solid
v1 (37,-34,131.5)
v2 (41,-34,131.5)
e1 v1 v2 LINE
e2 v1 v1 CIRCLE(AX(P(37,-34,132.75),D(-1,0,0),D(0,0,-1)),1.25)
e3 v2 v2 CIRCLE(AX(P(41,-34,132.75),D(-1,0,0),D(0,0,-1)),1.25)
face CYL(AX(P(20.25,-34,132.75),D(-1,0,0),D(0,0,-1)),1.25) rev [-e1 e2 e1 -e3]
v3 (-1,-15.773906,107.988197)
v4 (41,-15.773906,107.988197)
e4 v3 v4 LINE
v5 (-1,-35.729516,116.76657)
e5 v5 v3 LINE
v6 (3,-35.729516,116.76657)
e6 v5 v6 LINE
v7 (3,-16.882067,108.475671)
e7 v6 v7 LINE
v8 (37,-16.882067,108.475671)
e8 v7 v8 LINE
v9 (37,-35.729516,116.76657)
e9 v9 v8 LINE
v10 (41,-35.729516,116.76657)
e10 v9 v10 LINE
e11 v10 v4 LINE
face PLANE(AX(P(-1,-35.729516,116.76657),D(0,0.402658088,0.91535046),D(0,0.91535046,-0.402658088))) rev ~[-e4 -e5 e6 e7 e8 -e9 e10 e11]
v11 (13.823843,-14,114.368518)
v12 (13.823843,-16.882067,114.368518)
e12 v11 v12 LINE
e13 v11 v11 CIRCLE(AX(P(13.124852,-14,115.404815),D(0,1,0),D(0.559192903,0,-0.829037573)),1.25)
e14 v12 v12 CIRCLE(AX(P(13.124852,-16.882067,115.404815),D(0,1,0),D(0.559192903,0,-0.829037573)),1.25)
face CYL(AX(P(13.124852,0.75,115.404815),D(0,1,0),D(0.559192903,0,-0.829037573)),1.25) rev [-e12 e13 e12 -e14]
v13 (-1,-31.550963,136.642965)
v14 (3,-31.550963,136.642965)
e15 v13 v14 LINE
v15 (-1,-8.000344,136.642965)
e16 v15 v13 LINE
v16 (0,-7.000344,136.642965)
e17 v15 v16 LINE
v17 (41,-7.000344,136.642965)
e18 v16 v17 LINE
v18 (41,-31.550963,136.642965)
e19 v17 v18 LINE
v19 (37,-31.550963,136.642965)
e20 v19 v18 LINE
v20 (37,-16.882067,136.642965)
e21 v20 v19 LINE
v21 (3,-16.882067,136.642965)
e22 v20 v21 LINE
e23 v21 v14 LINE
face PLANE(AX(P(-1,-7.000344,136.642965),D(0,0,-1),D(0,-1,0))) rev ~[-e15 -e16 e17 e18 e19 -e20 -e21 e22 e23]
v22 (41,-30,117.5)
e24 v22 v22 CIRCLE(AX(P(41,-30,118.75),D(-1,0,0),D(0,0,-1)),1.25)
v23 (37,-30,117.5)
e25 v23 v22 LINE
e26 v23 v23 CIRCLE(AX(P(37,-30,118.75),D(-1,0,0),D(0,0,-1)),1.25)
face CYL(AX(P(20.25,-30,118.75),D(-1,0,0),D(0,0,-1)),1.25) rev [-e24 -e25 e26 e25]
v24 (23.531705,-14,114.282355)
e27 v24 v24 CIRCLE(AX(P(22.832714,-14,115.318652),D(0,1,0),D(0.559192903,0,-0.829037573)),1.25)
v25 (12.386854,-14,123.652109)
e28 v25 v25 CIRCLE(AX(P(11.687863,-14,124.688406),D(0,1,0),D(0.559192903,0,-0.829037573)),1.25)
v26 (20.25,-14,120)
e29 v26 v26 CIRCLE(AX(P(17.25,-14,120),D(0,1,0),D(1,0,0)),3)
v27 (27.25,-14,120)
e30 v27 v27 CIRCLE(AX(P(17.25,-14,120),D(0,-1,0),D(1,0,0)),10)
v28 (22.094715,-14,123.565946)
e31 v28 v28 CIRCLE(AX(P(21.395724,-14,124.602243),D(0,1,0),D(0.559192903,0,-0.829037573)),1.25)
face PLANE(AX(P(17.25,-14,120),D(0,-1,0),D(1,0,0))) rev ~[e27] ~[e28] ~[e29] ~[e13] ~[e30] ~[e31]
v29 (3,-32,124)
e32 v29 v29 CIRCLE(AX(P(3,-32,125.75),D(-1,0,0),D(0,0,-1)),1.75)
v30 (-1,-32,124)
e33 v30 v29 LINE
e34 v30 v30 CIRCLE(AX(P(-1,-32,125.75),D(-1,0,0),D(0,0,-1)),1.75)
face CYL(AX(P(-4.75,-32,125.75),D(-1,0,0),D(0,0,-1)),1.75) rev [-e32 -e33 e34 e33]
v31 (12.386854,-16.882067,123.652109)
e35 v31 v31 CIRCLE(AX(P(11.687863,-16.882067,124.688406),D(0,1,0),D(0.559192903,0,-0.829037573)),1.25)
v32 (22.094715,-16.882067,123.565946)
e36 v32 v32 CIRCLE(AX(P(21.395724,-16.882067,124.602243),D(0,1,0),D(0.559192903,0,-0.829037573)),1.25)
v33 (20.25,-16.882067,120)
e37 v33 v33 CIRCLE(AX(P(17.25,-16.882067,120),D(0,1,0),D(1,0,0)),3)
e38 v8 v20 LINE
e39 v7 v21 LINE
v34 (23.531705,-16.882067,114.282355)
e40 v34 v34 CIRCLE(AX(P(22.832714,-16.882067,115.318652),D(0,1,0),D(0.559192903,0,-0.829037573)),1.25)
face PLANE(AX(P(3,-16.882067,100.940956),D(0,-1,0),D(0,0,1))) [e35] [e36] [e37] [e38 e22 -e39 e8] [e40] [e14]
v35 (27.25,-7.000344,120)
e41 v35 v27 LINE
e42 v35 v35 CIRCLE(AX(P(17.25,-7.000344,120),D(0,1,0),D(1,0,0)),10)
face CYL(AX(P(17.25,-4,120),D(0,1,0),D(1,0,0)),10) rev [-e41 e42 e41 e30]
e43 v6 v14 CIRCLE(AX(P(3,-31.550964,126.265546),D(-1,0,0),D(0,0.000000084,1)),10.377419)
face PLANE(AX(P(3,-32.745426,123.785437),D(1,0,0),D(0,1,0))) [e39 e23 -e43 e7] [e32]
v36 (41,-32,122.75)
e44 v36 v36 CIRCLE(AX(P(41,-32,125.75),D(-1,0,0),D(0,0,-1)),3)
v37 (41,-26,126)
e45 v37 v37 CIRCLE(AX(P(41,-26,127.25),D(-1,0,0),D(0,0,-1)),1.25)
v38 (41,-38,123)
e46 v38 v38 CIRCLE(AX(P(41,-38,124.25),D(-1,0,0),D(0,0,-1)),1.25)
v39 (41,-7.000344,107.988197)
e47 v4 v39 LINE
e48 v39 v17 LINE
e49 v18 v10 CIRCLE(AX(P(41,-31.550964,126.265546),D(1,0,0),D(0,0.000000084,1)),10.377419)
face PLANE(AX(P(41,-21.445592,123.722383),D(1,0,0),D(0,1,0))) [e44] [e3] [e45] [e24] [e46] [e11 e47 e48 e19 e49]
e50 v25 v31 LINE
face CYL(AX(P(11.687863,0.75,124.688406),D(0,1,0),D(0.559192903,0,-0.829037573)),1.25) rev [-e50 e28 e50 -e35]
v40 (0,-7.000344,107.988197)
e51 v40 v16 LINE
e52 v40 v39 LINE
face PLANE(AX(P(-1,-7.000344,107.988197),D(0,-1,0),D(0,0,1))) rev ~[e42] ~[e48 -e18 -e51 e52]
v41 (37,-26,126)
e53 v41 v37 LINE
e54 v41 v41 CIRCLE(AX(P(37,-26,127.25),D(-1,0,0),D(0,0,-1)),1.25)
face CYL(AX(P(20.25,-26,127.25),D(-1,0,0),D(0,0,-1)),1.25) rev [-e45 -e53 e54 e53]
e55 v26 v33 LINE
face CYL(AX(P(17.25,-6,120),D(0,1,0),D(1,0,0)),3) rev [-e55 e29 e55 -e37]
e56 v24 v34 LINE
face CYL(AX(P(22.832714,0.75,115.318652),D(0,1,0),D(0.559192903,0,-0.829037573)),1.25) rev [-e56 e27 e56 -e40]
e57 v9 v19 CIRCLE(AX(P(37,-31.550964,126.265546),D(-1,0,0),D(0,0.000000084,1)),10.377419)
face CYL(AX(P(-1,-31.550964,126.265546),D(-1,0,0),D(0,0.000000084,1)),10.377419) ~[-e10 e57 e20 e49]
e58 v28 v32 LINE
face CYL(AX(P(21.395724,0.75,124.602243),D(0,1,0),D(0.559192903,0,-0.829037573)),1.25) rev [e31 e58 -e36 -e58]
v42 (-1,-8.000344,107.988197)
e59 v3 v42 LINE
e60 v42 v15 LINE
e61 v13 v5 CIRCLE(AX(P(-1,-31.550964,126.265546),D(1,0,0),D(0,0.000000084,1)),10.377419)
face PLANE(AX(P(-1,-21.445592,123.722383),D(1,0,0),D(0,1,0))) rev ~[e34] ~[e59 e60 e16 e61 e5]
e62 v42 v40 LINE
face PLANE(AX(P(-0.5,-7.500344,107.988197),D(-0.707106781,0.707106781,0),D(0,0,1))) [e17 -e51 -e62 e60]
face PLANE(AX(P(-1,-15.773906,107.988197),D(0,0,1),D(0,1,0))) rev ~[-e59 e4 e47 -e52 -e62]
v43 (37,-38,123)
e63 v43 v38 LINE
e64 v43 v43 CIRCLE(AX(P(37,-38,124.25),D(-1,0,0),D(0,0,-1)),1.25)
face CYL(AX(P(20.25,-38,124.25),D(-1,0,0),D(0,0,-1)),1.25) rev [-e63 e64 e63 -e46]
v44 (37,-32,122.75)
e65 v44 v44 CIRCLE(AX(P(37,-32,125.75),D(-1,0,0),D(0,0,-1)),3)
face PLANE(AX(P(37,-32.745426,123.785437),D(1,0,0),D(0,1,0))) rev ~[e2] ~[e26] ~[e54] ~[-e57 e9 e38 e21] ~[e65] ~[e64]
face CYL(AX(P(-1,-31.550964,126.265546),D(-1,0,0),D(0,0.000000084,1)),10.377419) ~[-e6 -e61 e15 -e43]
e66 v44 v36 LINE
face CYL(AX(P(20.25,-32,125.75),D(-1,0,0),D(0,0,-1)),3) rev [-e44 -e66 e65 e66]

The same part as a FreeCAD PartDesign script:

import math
import FreeCAD as App
import Part
import Sketcher

V = App.Vector
Q = App.Units.Quantity


def edges_at(feature, points):
    """Names of the edges that pass closest to the given points."""
    edges = feature.Shape.Edges
    near = lambda p: min(range(len(edges)), key=lambda i: edges[i].distToShape(Part.Vertex(*p))[0])
    return sorted({f"Edge{near(p) + 1}" for p in points})


def add_polygon(sketch, points):
    """Adds a closed chain of lines whose ends are joined by coincident constraints."""
    first, n = sketch.GeometryCount, len(points)
    for a, b in zip(points, points[1:] + points[:1]):
        sketch.addGeometry(Part.LineSegment(App.Vector(*a, 0), App.Vector(*b, 0)), False)
    for i in range(n):
        sketch.addConstraint(Sketcher.Constraint("Coincident", first + i, 2, first + (i + 1) % n, 1))

doc = App.newDocument("Part")
body = doc.addObject("PartDesign::Body", "Body")

# Sketch on XY plane
sketch1 = body.newObject("Sketcher::SketchObject", "Sketch")
sketch1.AttachmentSupport = (doc.getObject("XY_Plane"), [""])
sketch1.MapMode = "FlatFace"
sketch1.addGeometry(Part.Circle(V(0, 0, 0), V(0, 0, 1), 1.8), False)
sketch1.addConstraint([
    Sketcher.Constraint("Coincident", 0, 3, -1, 1),
    Sketcher.Constraint("Diameter", 0, Q("3.5 mm")),
])
pad1 = body.newObject("PartDesign::Pad", "Pad")
pad1.Profile = sketch1
pad1.Length = 22
body2 = doc.addObject("PartDesign::Body", "Body001")
doc.recompute()

body.Placement = App.Placement(V(0, 0, 0), App.Rotation(V(0, 1, 0), 90))
boolean = body2.newObject("PartDesign::Boolean", "Boolean")
boolean.Type = "Fuse"
boolean.addObjects([body])
body3 = doc.addObject("PartDesign::Body", "Body002")
doc.recompute()

body2.Placement = App.Placement(V(-4.75, -32, 125.75), App.Rotation(V(0, 0, 1), 0))
boolean2 = body3.newObject("PartDesign::Boolean", "Boolean001")
boolean2.Type = "Fuse"
boolean2.addObjects([body2])
body4 = doc.addObject("PartDesign::Body", "Body003")

# Sketch on XY plane
sketch2 = body4.newObject("Sketcher::SketchObject", "Sketch001")
sketch2.AttachmentSupport = (doc.getObject("XY_Plane003"), [""])
sketch2.MapMode = "FlatFace"
sketch2.addGeometry(Part.Circle(V(0, 0, 0), V(0, 0, 1), 1.2), False)
sketch2.addConstraint([
    Sketcher.Constraint("Coincident", 0, 3, -1, 1),
    Sketcher.Constraint("Diameter", 0, Q("2.5 mm")),
])
pad2 = body4.newObject("PartDesign::Pad", "Pad001")
pad2.Profile = sketch2
pad2.Length = 22
body5 = doc.addObject("PartDesign::Body", "Body004")
doc.recompute()

body4.Placement = App.Placement(V(0, 0, 0), App.Rotation(V(0, 1, 0), 90))
boolean3 = body5.newObject("PartDesign::Boolean", "Boolean002")
boolean3.Type = "Fuse"
boolean3.addObjects([body4])
body6 = doc.addObject("PartDesign::Body", "Body005")
doc.recompute()

body5.Placement = App.Placement(V(20.25, -38, 124.25), App.Rotation(V(0, 0, 1), 0))
boolean4 = body6.newObject("PartDesign::Boolean", "Boolean003")
boolean4.Type = "Fuse"
boolean4.addObjects([body5])
body7 = doc.addObject("PartDesign::Body", "Body006")

# Sketch on XY plane
sketch3 = body7.newObject("Sketcher::SketchObject", "Sketch002")
sketch3.AttachmentSupport = (doc.getObject("XY_Plane006"), [""])
sketch3.MapMode = "FlatFace"
sketch3.addGeometry(Part.Circle(V(0, 0, 0), V(0, 0, 1), 1.2), False)
sketch3.addConstraint([
    Sketcher.Constraint("Coincident", 0, 3, -1, 1),
    Sketcher.Constraint("Diameter", 0, Q("2.5 mm")),
])
pad3 = body7.newObject("PartDesign::Pad", "Pad002")
pad3.Profile = sketch3
pad3.Length = 22
body8 = doc.addObject("PartDesign::Body", "Body007")
doc.recompute()

body7.Placement = App.Placement(V(0, 0, 0), App.Rotation(V(0, 1, 0), 90))
boolean5 = body8.newObject("PartDesign::Boolean", "Boolean004")
boolean5.Type = "Fuse"
boolean5.addObjects([body7])
body9 = doc.addObject("PartDesign::Body", "Body008")
doc.recompute()

body8.Placement = App.Placement(V(20.25, -26, 127.25), App.Rotation(V(0, 0, 1), 0))
boolean6 = body9.newObject("PartDesign::Boolean", "Boolean005")
boolean6.Type = "Fuse"
boolean6.addObjects([body8])
body10 = doc.addObject("PartDesign::Body", "Body009")

# Sketch on XY plane
sketch4 = body10.newObject("Sketcher::SketchObject", "Sketch003")
sketch4.AttachmentSupport = (doc.getObject("XY_Plane009"), [""])
sketch4.MapMode = "FlatFace"
sketch4.addGeometry(Part.Circle(V(0, 0, 0), V(0, 0, 1), 1.2), False)
sketch4.addConstraint([
    Sketcher.Constraint("Coincident", 0, 3, -1, 1),
    Sketcher.Constraint("Diameter", 0, Q("2.5 mm")),
])
pad4 = body10.newObject("PartDesign::Pad", "Pad003")
pad4.Profile = sketch4
pad4.Length = 22
body11 = doc.addObject("PartDesign::Body", "Body010")
doc.recompute()

body10.Placement = App.Placement(V(0, 0, 0), App.Rotation(V(0, 1, 0), 90))
boolean7 = body11.newObject("PartDesign::Boolean", "Boolean006")
boolean7.Type = "Fuse"
boolean7.addObjects([body10])
body12 = doc.addObject("PartDesign::Body", "Body011")
doc.recompute()

body11.Placement = App.Placement(V(20.25, -30, 118.75), App.Rotation(V(0, 0, 1), 0))
boolean8 = body12.newObject("PartDesign::Boolean", "Boolean007")
boolean8.Type = "Fuse"
boolean8.addObjects([body11])
body13 = doc.addObject("PartDesign::Body", "Body012")

# Sketch on XY plane
sketch5 = body13.newObject("Sketcher::SketchObject", "Sketch004")
sketch5.AttachmentSupport = (doc.getObject("XY_Plane012"), [""])
sketch5.MapMode = "FlatFace"
sketch5.addGeometry(Part.Circle(V(0, 0, 0), V(0, 0, 1), 1.2), False)
sketch5.addConstraint([
    Sketcher.Constraint("Coincident", 0, 3, -1, 1),
    Sketcher.Constraint("Diameter", 0, Q("2.5 mm")),
])
pad5 = body13.newObject("PartDesign::Pad", "Pad004")
pad5.Profile = sketch5
pad5.Length = 22
body14 = doc.addObject("PartDesign::Body", "Body013")
doc.recompute()

body13.Placement = App.Placement(V(0, 0, 0), App.Rotation(V(0, 1, 0), 90))
boolean9 = body14.newObject("PartDesign::Boolean", "Boolean008")
boolean9.Type = "Fuse"
boolean9.addObjects([body13])
body15 = doc.addObject("PartDesign::Body", "Body014")
body15.AllowCompound = True
doc.recompute()

body14.Placement = App.Placement(V(20.25, -34, 132.75), App.Rotation(V(0, 0, 1), 0))
boolean10 = body15.newObject("PartDesign::Boolean", "Boolean009")
boolean10.Type = "Fuse"
boolean10.addObjects([body14])
doc.recompute()

boolean11 = body15.newObject("PartDesign::Boolean", "Boolean010")
boolean11.Type = "Fuse"
boolean11.addObjects([body6])
doc.recompute()

boolean12 = body15.newObject("PartDesign::Boolean", "Boolean011")
boolean12.Type = "Fuse"
boolean12.addObjects([body9])
doc.recompute()

boolean13 = body15.newObject("PartDesign::Boolean", "Boolean012")
boolean13.Type = "Fuse"
boolean13.addObjects([body12])
body16 = doc.addObject("PartDesign::Body", "Body015")

# Sketch on XY plane
sketch6 = body16.newObject("Sketcher::SketchObject", "Sketch005")
sketch6.AttachmentSupport = (doc.getObject("XY_Plane015"), [""])
sketch6.MapMode = "FlatFace"
sketch6.addGeometry(Part.Circle(V(0, 0, 0), V(0, 0, 1), 1.2), False)
sketch6.addConstraint([
    Sketcher.Constraint("Coincident", 0, 3, -1, 1),
    Sketcher.Constraint("Diameter", 0, Q("2.5 mm")),
])
pad6 = body16.newObject("PartDesign::Pad", "Pad005")
pad6.Profile = sketch6
pad6.Length = 22
body17 = doc.addObject("PartDesign::Body", "Body016")
doc.recompute()

body16.Placement = App.Placement(V(0, 0, 0), App.Rotation(V(0, 1, 0), 90))
boolean14 = body17.newObject("PartDesign::Boolean", "Boolean013")
boolean14.Type = "Fuse"
boolean14.addObjects([body16])
body18 = doc.addObject("PartDesign::Body", "Body017")
doc.recompute()

body17.Placement = App.Placement(V(20.25, -38, 124.25), App.Rotation(V(0, 0, 1), 0))
boolean15 = body18.newObject("PartDesign::Boolean", "Boolean014")
boolean15.Type = "Fuse"
boolean15.addObjects([body17])
body19 = doc.addObject("PartDesign::Body", "Body018")

# Sketch on XY plane
sketch7 = body19.newObject("Sketcher::SketchObject", "Sketch006")
sketch7.AttachmentSupport = (doc.getObject("XY_Plane018"), [""])
sketch7.MapMode = "FlatFace"
sketch7.addGeometry(Part.Circle(V(0, 0, 0), V(0, 0, 1), 1.2), False)
sketch7.addConstraint([
    Sketcher.Constraint("Coincident", 0, 3, -1, 1),
    Sketcher.Constraint("Diameter", 0, Q("2.5 mm")),
])
pad7 = body19.newObject("PartDesign::Pad", "Pad006")
pad7.Profile = sketch7
pad7.Length = 22
body20 = doc.addObject("PartDesign::Body", "Body019")
doc.recompute()

body19.Placement = App.Placement(V(0, 0, 0), App.Rotation(V(0, 1, 0), 90))
boolean16 = body20.newObject("PartDesign::Boolean", "Boolean015")
boolean16.Type = "Fuse"
boolean16.addObjects([body19])
body21 = doc.addObject("PartDesign::Body", "Body020")
doc.recompute()

body20.Placement = App.Placement(V(20.25, -26, 127.25), App.Rotation(V(0, 0, 1), 0))
boolean17 = body21.newObject("PartDesign::Boolean", "Boolean016")
boolean17.Type = "Fuse"
boolean17.addObjects([body20])
body22 = doc.addObject("PartDesign::Body", "Body021")

# Sketch on XY plane
sketch8 = body22.newObject("Sketcher::SketchObject", "Sketch007")
sketch8.AttachmentSupport = (doc.getObject("XY_Plane021"), [""])
sketch8.MapMode = "FlatFace"
sketch8.addGeometry(Part.Circle(V(0, 0, 0), V(0, 0, 1), 1.2), False)
sketch8.addConstraint([
    Sketcher.Constraint("Coincident", 0, 3, -1, 1),
    Sketcher.Constraint("Diameter", 0, Q("2.5 mm")),
])
pad8 = body22.newObject("PartDesign::Pad", "Pad007")
pad8.Profile = sketch8
pad8.Length = 22
body23 = doc.addObject("PartDesign::Body", "Body022")
doc.recompute()

body22.Placement = App.Placement(V(0, 0, 0), App.Rotation(V(0, 1, 0), 90))
boolean18 = body23.newObject("PartDesign::Boolean", "Boolean017")
boolean18.Type = "Fuse"
boolean18.addObjects([body22])
body24 = doc.addObject("PartDesign::Body", "Body023")
doc.recompute()

body23.Placement = App.Placement(V(20.25, -30, 118.75), App.Rotation(V(0, 0, 1), 0))
boolean19 = body24.newObject("PartDesign::Boolean", "Boolean018")
boolean19.Type = "Fuse"
boolean19.addObjects([body23])
body25 = doc.addObject("PartDesign::Body", "Body024")

# Sketch on XY plane
sketch9 = body25.newObject("Sketcher::SketchObject", "Sketch008")
sketch9.AttachmentSupport = (doc.getObject("XY_Plane024"), [""])
sketch9.MapMode = "FlatFace"
sketch9.addGeometry(Part.Circle(V(0, 0, 0), V(0, 0, 1), 1.2), False)
sketch9.addConstraint([
    Sketcher.Constraint("Coincident", 0, 3, -1, 1),
    Sketcher.Constraint("Diameter", 0, Q("2.5 mm")),
])
pad9 = body25.newObject("PartDesign::Pad", "Pad008")
pad9.Profile = sketch9
pad9.Length = 22
body26 = doc.addObject("PartDesign::Body", "Body025")
doc.recompute()

body25.Placement = App.Placement(V(0, 0, 0), App.Rotation(V(0, 1, 0), 90))
boolean20 = body26.newObject("PartDesign::Boolean", "Boolean019")
boolean20.Type = "Fuse"
boolean20.addObjects([body25])
body27 = doc.addObject("PartDesign::Body", "Body026")
body27.AllowCompound = True
doc.recompute()

body26.Placement = App.Placement(V(20.25, -34, 132.75), App.Rotation(V(0, 0, 1), 0))
boolean21 = body27.newObject("PartDesign::Boolean", "Boolean020")
boolean21.Type = "Fuse"
boolean21.addObjects([body26])
doc.recompute()

boolean22 = body27.newObject("PartDesign::Boolean", "Boolean021")
boolean22.Type = "Fuse"
boolean22.addObjects([body18])
doc.recompute()

boolean23 = body27.newObject("PartDesign::Boolean", "Boolean022")
boolean23.Type = "Fuse"
boolean23.addObjects([body21])
doc.recompute()

boolean24 = body27.newObject("PartDesign::Boolean", "Boolean023")
boolean24.Type = "Fuse"
boolean24.addObjects([body24])
body28 = doc.addObject("PartDesign::Body", "Body027")
body28.AllowCompound = True
doc.recompute()

body27.Placement = App.Placement(V(0, 0, 0), App.Rotation(V(1, 0, 0), 34))
boolean25 = body28.newObject("PartDesign::Boolean", "Boolean024")
boolean25.Type = "Fuse"
boolean25.addObjects([body27])
body29 = doc.addObject("PartDesign::Body", "Body028")
body29.AllowCompound = True
doc.recompute()

body28.Placement = App.Placement(V(114.107998, 21, 33.646227), App.Rotation(V(0, 0, 1), 270))
boolean26 = body29.newObject("PartDesign::Boolean", "Boolean025")
boolean26.Type = "Fuse"
boolean26.addObjects([body28])
body30 = doc.addObject("PartDesign::Body", "Body029")

# Sketch on XY plane
sketch10 = body30.newObject("Sketcher::SketchObject", "Sketch009")
sketch10.AttachmentSupport = (doc.getObject("XY_Plane029"), [""])
sketch10.MapMode = "FlatFace"
sketch10.addGeometry(Part.Circle(V(0, 0, 0), V(0, 0, 1), 3), False)
sketch10.addConstraint([
    Sketcher.Constraint("Coincident", 0, 3, -1, 1),
    Sketcher.Constraint("Diameter", 0, Q("6 mm")),
])
pad10 = body30.newObject("PartDesign::Pad", "Pad009")
pad10.Profile = sketch10
pad10.Length = 22
body31 = doc.addObject("PartDesign::Body", "Body030")
doc.recompute()

body30.Placement = App.Placement(V(0, 0, 0), App.Rotation(V(0, 1, 0), 90))
boolean27 = body31.newObject("PartDesign::Boolean", "Boolean026")
boolean27.Type = "Fuse"
boolean27.addObjects([body30])
body32 = doc.addObject("PartDesign::Body", "Body031")
doc.recompute()

body31.Placement = App.Placement(V(20.25, -32, 125.75), App.Rotation(V(0, 0, 1), 0))
boolean28 = body32.newObject("PartDesign::Boolean", "Boolean027")
boolean28.Type = "Fuse"
boolean28.addObjects([body31])
body33 = doc.addObject("PartDesign::Body", "Body032")

# Sketch on XY plane
sketch11 = body33.newObject("Sketcher::SketchObject", "Sketch010")
sketch11.AttachmentSupport = (doc.getObject("XY_Plane032"), [""])
sketch11.MapMode = "FlatFace"
sketch11.addGeometry(Part.Circle(V(0, 0, 0), V(0, 0, 1), 3), False)
sketch11.addConstraint([
    Sketcher.Constraint("Coincident", 0, 3, -1, 1),
    Sketcher.Constraint("Diameter", 0, Q("6 mm")),
])
pad11 = body33.newObject("PartDesign::Pad", "Pad010")
pad11.Profile = sketch11
pad11.Length = 13
body34 = doc.addObject("PartDesign::Body", "Body033")
doc.recompute()

body33.Placement = App.Placement(V(0, 0, 0), App.Rotation(V(1, 0, 0), 90))
boolean29 = body34.newObject("PartDesign::Boolean", "Boolean028")
boolean29.Type = "Fuse"
boolean29.addObjects([body33])
body35 = doc.addObject("PartDesign::Body", "Body034")
doc.recompute()

body34.Placement = App.Placement(V(17.25, -6, 120), App.Rotation(V(0, 0, 1), 0))
boolean30 = body35.newObject("PartDesign::Boolean", "Boolean029")
boolean30.Type = "Fuse"
boolean30.addObjects([body34])
body36 = doc.addObject("PartDesign::Body", "Body035")

# Sketch on XY plane
sketch12 = body36.newObject("Sketcher::SketchObject", "Sketch011")
sketch12.AttachmentSupport = (doc.getObject("XY_Plane035"), [""])
sketch12.MapMode = "FlatFace"
sketch12.addGeometry(Part.Circle(V(0, 0, 0), V(0, 0, 1), 10), False)
sketch12.addConstraint([
    Sketcher.Constraint("Coincident", 0, 3, -1, 1),
    Sketcher.Constraint("Diameter", 0, Q("20 mm")),
])
pad12 = body36.newObject("PartDesign::Pad", "Pad011")
pad12.Profile = sketch12
pad12.Length = 10
body37 = doc.addObject("PartDesign::Body", "Body036")
doc.recompute()

body36.Placement = App.Placement(V(0, 0, 0), App.Rotation(V(1, 0, 0), 90))
boolean31 = body37.newObject("PartDesign::Boolean", "Boolean030")
boolean31.Type = "Fuse"
boolean31.addObjects([body36])
body38 = doc.addObject("PartDesign::Body", "Body037")
doc.recompute()

body37.Placement = App.Placement(V(17.25, -4, 120), App.Rotation(V(0, 0, 1), 0))
boolean32 = body38.newObject("PartDesign::Boolean", "Boolean031")
boolean32.Type = "Fuse"
boolean32.addObjects([body37])
body39 = doc.addObject("PartDesign::Body", "Body038")

# Sketch on YZ plane
sketch13 = body39.newObject("Sketcher::SketchObject", "Sketch012")
sketch13.AttachmentSupport = (doc.getObject("YZ_Plane038"), [""])
sketch13.MapMode = "FlatFace"
sketch13.AttachmentOffset = App.Placement(V(0, 0, 3), App.Rotation())
add_polygon(sketch13, [(-17, 101), (-17, 138), (-53, 141), (-53, 120)])  # lines 0-3
sketch13.addConstraint([
    Sketcher.Constraint("Vertical", 0),
    Sketcher.Constraint("Vertical", 2),
    Sketcher.Constraint("DistanceY", 2, 2, 2, 1, Q("21.685241 mm")),
    Sketcher.Constraint("DistanceY", 0, 1, 0, 2, Q("36.618965 mm")),
    Sketcher.Constraint("DistanceY", -1, 1, 0, 2, Q("137.559921 mm")),
    Sketcher.Constraint("DistanceY", -1, 1, 1, 2, Q("141.373672 mm")),
    Sketcher.Constraint("DistanceX", 1, 2, 0, 2, Q("35.689031 mm")),
    Sketcher.Constraint("DistanceX", 0, 2, -1, 1, Q("16.882067 mm")),
])
pad13 = body39.newObject("PartDesign::Pad", "Pad012")
pad13.Profile = sketch13
pad13.Length = 34
body40 = doc.addObject("PartDesign::Body", "Body039")

# Sketch on YZ plane
sketch14 = body40.newObject("Sketcher::SketchObject", "Sketch013")
sketch14.AttachmentSupport = (doc.getObject("YZ_Plane039"), [""])
sketch14.MapMode = "FlatFace"
sketch14.AttachmentOffset = App.Placement(V(0, 0, -1), App.Rotation())
sketch14.addGeometry([
    Part.LineSegment(V(-36, 117, 0), V(-16, 108, 0)),  # 0
    Part.LineSegment(V(-16, 108, 0), V(-7, 108, 0)),  # 1
    Part.LineSegment(V(-7, 108, 0), V(-7, 137, 0)),  # 2
    Part.LineSegment(V(-7, 137, 0), V(-32, 137, 0)),  # 3
    Part.ArcOfCircle(Part.Circle(V(-32, 126, 0), V(0, 0, 1), 10), math.radians(90), math.radians(246)),  # 4
], False)
sketch14.addConstraint([
    Sketcher.Constraint("Coincident", 0, 2, 1, 1),
    Sketcher.Constraint("Coincident", 1, 2, 2, 1),
    Sketcher.Constraint("Coincident", 2, 2, 3, 1),
    Sketcher.Constraint("Tangent", 3, 2, 4, 1),
    Sketcher.Constraint("Tangent", 4, 2, 0, 1),
    Sketcher.Constraint("Horizontal", 1),
    Sketcher.Constraint("Vertical", 2),
    Sketcher.Constraint("Horizontal", 3),
    Sketcher.Constraint("Radius", 4, Q("10.377419 mm")),
    Sketcher.Constraint("DistanceX", 3, 2, 3, 1, Q("24.550619 mm")),
    Sketcher.Constraint("DistanceY", 2, 1, 2, 2, Q("28.654768 mm")),
    Sketcher.Constraint("Distance", 0, Q("21.80106 mm")),
    Sketcher.Constraint("DistanceY", -1, 1, 4, 2, Q("116.76657 mm")),
    Sketcher.Constraint("DistanceX", 4, 3, -1, 1, Q("31.550964 mm")),
])
pad14 = body40.newObject("PartDesign::Pad", "Pad013")
pad14.Profile = sketch14
pad14.Length = 42
doc.recompute()

boolean33 = body40.newObject("PartDesign::Boolean", "Boolean032")
boolean33.Type = "Cut"
boolean33.addObjects([body39])
doc.recompute()

boolean34 = body40.newObject("PartDesign::Boolean", "Boolean033")
boolean34.Type = "Cut"
boolean34.addObjects([body38])
doc.recompute()

boolean35 = body40.newObject("PartDesign::Boolean", "Boolean034")
boolean35.Type = "Cut"
boolean35.addObjects([body35])
doc.recompute()

chamfer = body40.newObject("PartDesign::Chamfer", "Chamfer")
chamfer.Base = (boolean35, edges_at(boolean35, [(-1, -7, 122.316)]))
chamfer.Size = 1
doc.recompute()

boolean36 = body40.newObject("PartDesign::Boolean", "Boolean035")
boolean36.Type = "Cut"
boolean36.addObjects([body32])
doc.recompute()

boolean37 = body40.newObject("PartDesign::Boolean", "Boolean036")
boolean37.Type = "Cut"
boolean37.addObjects([body29])
doc.recompute()

boolean38 = body40.newObject("PartDesign::Boolean", "Boolean037")
boolean38.Type = "Cut"
boolean38.addObjects([body15])
doc.recompute()

boolean39 = body40.newObject("PartDesign::Boolean", "Boolean038")
boolean39.Type = "Cut"
boolean39.addObjects([body3])

doc.recompute()
